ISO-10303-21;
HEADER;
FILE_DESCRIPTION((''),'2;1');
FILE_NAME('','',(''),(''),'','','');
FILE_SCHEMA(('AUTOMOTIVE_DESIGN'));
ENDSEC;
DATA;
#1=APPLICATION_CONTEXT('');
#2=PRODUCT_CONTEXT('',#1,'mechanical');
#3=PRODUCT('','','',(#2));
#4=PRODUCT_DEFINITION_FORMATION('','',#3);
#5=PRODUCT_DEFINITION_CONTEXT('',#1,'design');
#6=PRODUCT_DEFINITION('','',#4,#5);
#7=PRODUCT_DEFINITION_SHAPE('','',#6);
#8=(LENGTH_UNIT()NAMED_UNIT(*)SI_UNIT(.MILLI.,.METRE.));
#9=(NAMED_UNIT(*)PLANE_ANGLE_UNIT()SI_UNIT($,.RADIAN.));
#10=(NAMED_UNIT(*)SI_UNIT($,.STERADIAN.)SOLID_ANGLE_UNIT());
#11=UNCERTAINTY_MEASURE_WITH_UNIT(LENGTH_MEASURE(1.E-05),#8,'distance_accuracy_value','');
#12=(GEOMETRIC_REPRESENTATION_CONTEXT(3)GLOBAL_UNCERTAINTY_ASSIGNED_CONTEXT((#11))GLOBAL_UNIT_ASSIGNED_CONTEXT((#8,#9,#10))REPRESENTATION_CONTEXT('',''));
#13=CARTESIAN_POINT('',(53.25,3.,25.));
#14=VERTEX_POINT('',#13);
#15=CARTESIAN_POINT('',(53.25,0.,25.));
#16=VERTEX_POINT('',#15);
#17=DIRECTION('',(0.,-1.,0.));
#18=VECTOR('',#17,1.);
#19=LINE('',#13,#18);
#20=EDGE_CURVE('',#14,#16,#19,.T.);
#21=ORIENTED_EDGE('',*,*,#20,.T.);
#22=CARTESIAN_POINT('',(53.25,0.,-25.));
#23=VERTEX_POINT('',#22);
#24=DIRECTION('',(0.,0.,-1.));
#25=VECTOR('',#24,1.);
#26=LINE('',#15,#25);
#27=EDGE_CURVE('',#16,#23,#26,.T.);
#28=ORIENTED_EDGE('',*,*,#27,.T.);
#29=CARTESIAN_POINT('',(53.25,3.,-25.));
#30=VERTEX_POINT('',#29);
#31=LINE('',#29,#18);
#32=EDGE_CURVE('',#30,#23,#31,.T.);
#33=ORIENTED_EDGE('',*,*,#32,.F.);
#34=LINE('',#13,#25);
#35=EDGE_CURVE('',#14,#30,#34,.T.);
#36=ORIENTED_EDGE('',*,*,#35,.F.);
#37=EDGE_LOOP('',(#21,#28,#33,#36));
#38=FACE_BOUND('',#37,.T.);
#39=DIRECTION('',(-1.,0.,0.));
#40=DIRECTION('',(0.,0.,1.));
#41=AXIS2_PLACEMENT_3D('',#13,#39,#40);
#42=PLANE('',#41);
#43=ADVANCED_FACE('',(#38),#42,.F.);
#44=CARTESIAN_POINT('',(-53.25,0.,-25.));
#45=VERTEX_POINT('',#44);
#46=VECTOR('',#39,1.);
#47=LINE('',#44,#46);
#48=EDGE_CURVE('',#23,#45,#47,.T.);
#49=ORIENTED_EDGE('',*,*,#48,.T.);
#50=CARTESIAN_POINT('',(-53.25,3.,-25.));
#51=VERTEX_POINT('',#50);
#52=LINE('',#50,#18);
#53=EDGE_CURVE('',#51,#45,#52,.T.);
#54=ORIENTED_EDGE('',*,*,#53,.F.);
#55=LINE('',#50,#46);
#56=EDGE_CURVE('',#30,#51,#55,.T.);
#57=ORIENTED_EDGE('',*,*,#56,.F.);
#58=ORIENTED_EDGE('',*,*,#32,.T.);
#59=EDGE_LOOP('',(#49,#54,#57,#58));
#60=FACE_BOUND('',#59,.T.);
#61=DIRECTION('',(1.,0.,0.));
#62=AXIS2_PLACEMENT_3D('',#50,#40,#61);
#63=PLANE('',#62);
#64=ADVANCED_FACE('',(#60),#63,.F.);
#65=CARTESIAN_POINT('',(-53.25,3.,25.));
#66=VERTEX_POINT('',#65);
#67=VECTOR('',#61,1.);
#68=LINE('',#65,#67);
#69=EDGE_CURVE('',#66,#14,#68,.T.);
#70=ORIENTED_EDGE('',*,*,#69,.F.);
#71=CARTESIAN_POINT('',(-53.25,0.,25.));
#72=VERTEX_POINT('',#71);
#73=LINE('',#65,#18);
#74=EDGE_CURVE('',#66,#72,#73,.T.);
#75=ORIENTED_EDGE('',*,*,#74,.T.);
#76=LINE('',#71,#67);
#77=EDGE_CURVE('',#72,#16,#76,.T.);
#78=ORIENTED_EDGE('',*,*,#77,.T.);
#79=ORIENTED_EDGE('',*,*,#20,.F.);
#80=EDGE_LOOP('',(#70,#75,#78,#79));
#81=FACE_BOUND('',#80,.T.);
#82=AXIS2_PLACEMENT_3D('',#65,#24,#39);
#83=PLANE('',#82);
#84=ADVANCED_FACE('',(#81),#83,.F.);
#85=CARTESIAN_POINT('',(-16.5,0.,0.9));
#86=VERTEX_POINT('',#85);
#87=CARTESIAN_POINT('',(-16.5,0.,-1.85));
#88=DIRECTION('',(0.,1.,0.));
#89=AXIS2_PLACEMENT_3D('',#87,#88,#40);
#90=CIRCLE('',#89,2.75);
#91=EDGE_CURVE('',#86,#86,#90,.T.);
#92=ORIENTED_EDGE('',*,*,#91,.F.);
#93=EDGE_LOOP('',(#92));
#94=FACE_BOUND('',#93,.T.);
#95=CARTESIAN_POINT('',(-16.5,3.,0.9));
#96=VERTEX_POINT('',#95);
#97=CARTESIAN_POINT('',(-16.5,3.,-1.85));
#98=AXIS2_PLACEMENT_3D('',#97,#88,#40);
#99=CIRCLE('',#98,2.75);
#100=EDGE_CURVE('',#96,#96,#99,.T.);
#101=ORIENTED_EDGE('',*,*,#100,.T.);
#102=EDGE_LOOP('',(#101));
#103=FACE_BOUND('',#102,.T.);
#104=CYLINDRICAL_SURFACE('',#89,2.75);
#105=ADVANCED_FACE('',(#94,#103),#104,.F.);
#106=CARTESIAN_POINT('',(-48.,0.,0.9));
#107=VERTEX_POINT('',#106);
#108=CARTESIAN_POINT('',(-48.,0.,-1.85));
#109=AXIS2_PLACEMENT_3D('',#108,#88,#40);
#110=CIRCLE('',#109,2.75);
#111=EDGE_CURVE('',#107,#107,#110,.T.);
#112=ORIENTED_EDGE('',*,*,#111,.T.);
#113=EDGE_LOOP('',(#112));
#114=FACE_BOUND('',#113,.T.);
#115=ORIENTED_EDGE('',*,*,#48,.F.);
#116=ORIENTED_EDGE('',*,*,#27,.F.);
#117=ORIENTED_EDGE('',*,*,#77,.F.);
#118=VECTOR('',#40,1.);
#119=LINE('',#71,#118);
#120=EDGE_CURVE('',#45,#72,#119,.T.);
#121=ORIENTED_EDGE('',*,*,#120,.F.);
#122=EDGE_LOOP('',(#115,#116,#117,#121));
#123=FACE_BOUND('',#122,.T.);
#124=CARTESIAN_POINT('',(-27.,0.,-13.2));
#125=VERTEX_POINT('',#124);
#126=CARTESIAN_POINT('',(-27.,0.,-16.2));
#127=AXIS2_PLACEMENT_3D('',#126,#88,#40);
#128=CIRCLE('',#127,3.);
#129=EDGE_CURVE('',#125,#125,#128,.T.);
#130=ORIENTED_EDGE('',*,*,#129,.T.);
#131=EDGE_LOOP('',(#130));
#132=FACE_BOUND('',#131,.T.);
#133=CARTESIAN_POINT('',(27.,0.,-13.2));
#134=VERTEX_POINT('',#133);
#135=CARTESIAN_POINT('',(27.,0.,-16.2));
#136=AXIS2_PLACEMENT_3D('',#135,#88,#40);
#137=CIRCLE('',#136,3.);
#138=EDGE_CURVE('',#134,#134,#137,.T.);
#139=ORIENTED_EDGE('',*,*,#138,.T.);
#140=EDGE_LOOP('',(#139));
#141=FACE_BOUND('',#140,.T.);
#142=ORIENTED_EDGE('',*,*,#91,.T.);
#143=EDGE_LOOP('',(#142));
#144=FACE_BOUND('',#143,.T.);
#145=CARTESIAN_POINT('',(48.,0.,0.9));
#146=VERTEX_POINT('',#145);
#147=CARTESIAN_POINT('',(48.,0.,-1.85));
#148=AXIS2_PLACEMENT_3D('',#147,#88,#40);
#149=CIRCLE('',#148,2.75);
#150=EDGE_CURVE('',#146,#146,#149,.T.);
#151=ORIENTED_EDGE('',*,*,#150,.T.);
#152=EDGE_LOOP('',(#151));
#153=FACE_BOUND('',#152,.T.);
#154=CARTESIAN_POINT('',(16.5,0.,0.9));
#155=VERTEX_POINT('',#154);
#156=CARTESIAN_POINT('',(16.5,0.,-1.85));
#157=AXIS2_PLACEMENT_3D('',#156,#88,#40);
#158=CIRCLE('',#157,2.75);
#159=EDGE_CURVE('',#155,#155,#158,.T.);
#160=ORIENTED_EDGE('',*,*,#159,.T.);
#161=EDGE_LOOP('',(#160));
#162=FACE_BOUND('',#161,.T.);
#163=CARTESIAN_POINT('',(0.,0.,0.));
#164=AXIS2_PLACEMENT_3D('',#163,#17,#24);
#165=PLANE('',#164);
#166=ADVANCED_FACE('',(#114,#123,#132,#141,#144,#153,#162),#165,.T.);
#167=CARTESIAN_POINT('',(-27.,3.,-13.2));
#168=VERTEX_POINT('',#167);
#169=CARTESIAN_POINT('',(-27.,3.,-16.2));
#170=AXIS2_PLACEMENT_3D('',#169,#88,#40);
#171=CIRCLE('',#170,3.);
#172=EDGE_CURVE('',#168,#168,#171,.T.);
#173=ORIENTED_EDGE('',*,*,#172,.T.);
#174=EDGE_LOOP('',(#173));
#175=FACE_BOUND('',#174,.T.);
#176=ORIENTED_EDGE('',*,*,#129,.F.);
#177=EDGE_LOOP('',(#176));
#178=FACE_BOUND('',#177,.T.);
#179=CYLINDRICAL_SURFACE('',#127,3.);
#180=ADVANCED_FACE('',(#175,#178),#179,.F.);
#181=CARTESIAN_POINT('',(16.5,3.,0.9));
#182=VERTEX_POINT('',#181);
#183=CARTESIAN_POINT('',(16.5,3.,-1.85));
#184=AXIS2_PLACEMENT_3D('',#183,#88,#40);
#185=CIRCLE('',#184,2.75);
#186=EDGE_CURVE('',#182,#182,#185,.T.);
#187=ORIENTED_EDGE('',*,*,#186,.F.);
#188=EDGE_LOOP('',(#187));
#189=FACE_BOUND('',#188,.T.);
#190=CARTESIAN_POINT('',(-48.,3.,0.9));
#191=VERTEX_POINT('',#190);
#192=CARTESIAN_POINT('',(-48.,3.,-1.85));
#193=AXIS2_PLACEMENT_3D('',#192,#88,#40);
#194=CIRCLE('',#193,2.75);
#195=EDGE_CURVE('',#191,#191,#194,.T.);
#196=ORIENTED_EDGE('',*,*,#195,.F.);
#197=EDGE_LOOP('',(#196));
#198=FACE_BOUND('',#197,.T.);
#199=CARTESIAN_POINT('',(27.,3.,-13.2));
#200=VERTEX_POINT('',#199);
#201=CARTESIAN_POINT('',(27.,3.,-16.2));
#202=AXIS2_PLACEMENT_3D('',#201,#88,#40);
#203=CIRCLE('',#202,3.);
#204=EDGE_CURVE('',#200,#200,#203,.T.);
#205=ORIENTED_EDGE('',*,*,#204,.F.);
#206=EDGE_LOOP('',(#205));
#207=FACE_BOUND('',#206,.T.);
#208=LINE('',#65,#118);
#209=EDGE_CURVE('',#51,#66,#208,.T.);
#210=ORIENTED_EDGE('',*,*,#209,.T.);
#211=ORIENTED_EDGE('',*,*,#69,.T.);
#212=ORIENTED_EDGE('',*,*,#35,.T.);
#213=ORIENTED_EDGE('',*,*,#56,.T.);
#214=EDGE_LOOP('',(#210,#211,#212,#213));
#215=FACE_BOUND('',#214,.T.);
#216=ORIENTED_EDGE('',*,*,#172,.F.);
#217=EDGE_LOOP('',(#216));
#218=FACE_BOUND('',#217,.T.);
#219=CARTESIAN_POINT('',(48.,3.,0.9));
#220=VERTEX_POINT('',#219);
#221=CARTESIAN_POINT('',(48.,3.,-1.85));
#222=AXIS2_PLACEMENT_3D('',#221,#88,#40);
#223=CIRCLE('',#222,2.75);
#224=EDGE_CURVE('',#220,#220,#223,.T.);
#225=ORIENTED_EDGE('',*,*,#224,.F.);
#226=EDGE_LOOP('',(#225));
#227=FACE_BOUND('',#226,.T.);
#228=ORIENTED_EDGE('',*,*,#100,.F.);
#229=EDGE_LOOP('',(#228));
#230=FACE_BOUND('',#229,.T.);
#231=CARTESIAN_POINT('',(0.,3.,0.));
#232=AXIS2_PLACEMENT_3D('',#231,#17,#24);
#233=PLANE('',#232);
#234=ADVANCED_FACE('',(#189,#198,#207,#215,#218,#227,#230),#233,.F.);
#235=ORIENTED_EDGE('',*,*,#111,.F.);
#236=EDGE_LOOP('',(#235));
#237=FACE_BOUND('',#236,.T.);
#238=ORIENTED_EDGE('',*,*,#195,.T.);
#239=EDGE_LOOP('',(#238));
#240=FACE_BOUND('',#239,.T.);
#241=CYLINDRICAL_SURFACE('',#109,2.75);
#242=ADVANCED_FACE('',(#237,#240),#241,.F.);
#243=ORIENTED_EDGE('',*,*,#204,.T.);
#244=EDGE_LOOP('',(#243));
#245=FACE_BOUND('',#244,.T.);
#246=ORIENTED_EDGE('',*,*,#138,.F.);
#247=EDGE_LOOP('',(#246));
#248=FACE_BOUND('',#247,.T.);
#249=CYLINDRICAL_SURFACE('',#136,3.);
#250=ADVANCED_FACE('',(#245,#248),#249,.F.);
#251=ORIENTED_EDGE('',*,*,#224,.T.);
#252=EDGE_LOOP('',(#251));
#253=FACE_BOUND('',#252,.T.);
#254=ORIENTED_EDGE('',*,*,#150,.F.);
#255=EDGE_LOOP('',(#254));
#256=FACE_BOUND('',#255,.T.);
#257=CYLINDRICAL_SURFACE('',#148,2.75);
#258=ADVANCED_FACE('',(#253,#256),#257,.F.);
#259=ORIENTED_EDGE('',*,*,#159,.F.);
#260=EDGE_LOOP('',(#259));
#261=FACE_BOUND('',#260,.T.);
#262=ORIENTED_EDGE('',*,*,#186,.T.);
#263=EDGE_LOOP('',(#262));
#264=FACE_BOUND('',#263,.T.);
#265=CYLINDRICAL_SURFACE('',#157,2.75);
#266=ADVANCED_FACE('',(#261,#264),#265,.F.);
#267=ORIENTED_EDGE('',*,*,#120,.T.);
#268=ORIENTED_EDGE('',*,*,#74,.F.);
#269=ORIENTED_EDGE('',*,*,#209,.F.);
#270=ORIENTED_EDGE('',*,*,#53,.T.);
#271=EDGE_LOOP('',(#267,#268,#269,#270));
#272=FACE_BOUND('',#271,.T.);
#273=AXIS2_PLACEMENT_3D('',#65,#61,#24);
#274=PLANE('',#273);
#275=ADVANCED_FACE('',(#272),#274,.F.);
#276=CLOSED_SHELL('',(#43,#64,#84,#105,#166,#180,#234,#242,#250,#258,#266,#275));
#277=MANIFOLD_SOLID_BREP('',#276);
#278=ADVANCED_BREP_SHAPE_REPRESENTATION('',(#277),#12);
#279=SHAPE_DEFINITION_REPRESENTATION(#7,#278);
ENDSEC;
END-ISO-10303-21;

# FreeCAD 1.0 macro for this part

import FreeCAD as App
import Part
import Sketcher
from FreeCAD import Vector
Q = App.Units.Quantity

doc = App.newDocument("Part")
body = doc.addObject("PartDesign::Body", "Body")

# Sketch on XZ plane
sketch1 = body.newObject("Sketcher::SketchObject", "Sketch")
sketch1.AttachmentSupport = (doc.getObject("XZ_Plane"), [""])
sketch1.MapMode = "FlatFace"
sketch1.addGeometry(Part.LineSegment(Vector(-53, -25, 0), Vector(-53, 25, 0)), False)
sketch1.addGeometry(Part.LineSegment(Vector(-53, 25, 0), Vector(53, 25, 0)), False)
sketch1.addGeometry(Part.LineSegment(Vector(53, 25, 0), Vector(53, -25, 0)), False)
sketch1.addGeometry(Part.LineSegment(Vector(53, -25, 0), Vector(-53, -25, 0)), False)
sketch1.addConstraint(Sketcher.Constraint("Coincident", 0, 2, 1, 1))
sketch1.addConstraint(Sketcher.Constraint("Coincident", 1, 2, 2, 1))
sketch1.addConstraint(Sketcher.Constraint("Coincident", 2, 2, 3, 1))
sketch1.addConstraint(Sketcher.Constraint("Coincident", 3, 2, 0, 1))
sketch1.addConstraint(Sketcher.Constraint("Vertical", 0))
sketch1.addConstraint(Sketcher.Constraint("Horizontal", 1))
sketch1.addConstraint(Sketcher.Constraint("Vertical", 2))
sketch1.addConstraint(Sketcher.Constraint("Horizontal", 3))
sketch1.addConstraint(Sketcher.Constraint("Symmetric", 0, 2, 2, 2, -1, 1))
sketch1.addConstraint(Sketcher.Constraint("DistanceY", 0, 1, 0, 2, Q("50 mm")))
sketch1.addConstraint(Sketcher.Constraint("DistanceX", 1, 1, 1, 2, Q("106.5 mm")))
pad1 = body.newObject("PartDesign::Pad", "Pad")
pad1.Profile = sketch1
pad1.Length = 3
pad1.Reversed = True

# Sketch on XZ plane
sketch2 = body.newObject("Sketcher::SketchObject", "Sketch001")
sketch2.AttachmentSupport = (doc.getObject("XZ_Plane"), [""])
sketch2.MapMode = "FlatFace"
sketch2.AttachmentOffset = App.Placement(Vector(0, 0, -3), App.Rotation())
sketch2.addGeometry(Part.Circle(Vector(48, -1.9, 0), Vector(0, 0, 1), 2.8), False)
sketch2.addGeometry(Part.Circle(Vector(16.5, -1.9, 0), Vector(0, 0, 1), 2.8), False)
sketch2.addGeometry(Part.Circle(Vector(-16.5, -1.9, 0), Vector(0, 0, 1), 2.8), False)
sketch2.addGeometry(Part.Circle(Vector(-48, -1.9, 0), Vector(0, 0, 1), 2.8), False)
sketch2.addGeometry(Part.Circle(Vector(27, -16.2, 0), Vector(0, 0, 1), 3), False)
sketch2.addGeometry(Part.Circle(Vector(-27, -16.2, 0), Vector(0, 0, 1), 3), False)
sketch2.addConstraint(Sketcher.Constraint("Equal", 0, 1))
sketch2.addConstraint(Sketcher.Constraint("Equal", 1, 2))
sketch2.addConstraint(Sketcher.Constraint("Equal", 2, 3))
sketch2.addConstraint(Sketcher.Constraint("Equal", 4, 5))
sketch2.addConstraint(Sketcher.Constraint("Symmetric", 1, 3, 2, 3, -2))
sketch2.addConstraint(Sketcher.Constraint("Symmetric", 0, 3, 3, 3, -2))
sketch2.addConstraint(Sketcher.Constraint("Symmetric", 4, 3, 5, 3, -2))
sketch2.addConstraint(Sketcher.Constraint("Horizontal", 0, 3, 1, 3))
sketch2.addConstraint(Sketcher.Constraint("Diameter", 4, Q("6 mm")))
sketch2.addConstraint(Sketcher.Constraint("Diameter", 0, Q("5.5 mm")))
sketch2.addConstraint(Sketcher.Constraint("DistanceX", -1, 1, 0, 3, Q("48 mm")))
sketch2.addConstraint(Sketcher.Constraint("DistanceX", -1, 1, 4, 3, Q("27 mm")))
sketch2.addConstraint(Sketcher.Constraint("DistanceX", 2, 3, 1, 3, Q("33 mm")))
sketch2.addConstraint(Sketcher.Constraint("DistanceY", 4, 3, -1, 1, Q("16.2 mm")))
sketch2.addConstraint(Sketcher.Constraint("DistanceY", 0, 3, -1, 1, Q("1.85 mm")))
pocket1 = body.newObject("PartDesign::Pocket", "Pocket")
pocket1.Profile = sketch2
pocket1.Type = "ThroughAll"
pocket1.Reversed = True

doc.recompute()
